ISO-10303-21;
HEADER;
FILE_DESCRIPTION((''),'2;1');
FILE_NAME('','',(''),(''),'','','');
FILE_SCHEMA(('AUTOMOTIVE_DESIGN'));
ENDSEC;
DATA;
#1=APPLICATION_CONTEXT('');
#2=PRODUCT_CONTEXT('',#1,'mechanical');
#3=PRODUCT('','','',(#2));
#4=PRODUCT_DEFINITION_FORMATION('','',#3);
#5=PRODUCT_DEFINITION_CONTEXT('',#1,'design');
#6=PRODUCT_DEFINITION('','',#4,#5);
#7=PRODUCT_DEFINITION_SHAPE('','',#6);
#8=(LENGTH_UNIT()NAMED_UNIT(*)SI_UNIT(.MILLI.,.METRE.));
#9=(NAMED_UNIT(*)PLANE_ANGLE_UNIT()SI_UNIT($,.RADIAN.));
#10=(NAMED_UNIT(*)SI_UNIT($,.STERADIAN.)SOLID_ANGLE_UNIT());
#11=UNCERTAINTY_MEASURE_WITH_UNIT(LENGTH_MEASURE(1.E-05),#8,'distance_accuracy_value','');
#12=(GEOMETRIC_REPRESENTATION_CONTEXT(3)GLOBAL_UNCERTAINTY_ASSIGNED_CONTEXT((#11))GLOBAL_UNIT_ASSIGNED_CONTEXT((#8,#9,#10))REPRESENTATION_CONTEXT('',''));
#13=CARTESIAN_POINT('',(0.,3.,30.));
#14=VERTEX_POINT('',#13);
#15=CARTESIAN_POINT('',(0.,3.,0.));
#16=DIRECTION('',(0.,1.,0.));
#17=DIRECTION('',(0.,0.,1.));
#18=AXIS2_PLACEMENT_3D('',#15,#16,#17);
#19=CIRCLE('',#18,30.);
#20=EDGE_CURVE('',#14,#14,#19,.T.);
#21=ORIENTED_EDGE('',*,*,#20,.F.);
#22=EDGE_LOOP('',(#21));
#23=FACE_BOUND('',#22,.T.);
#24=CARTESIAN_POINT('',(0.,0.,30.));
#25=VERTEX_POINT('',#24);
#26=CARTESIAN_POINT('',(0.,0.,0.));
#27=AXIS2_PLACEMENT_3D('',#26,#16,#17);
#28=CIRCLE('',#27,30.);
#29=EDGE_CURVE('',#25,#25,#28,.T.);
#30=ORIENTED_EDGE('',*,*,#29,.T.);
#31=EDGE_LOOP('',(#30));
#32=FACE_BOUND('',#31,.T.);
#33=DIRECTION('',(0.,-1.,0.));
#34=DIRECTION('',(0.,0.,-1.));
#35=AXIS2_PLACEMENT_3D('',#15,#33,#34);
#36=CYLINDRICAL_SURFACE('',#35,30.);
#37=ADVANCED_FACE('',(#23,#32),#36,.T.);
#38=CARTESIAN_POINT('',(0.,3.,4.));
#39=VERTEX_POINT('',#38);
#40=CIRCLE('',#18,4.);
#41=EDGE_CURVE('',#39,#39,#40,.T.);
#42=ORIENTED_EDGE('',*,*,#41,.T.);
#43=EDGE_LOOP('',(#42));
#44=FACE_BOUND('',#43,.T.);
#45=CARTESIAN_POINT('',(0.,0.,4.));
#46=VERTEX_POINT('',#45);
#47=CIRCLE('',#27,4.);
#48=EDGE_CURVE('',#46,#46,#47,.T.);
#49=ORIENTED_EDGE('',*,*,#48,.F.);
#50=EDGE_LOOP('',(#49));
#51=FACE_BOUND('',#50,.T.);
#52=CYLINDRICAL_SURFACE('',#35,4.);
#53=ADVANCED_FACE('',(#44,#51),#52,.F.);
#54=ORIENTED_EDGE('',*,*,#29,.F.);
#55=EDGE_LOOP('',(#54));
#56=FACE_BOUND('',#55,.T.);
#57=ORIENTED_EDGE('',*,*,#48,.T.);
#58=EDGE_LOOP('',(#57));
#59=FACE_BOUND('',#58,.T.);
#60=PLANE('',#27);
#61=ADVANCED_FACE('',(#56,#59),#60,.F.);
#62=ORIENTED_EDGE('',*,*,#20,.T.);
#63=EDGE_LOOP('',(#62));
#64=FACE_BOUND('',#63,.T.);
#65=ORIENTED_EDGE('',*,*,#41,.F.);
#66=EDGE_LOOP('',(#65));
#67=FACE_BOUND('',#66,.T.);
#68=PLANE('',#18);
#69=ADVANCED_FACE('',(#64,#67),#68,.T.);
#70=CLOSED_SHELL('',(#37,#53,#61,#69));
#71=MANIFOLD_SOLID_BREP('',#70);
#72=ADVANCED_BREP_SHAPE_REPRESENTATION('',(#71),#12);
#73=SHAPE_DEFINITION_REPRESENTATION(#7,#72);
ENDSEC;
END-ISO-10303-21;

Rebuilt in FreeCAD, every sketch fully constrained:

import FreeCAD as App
import Part
import Sketcher
from FreeCAD import Vector
Q = App.Units.Quantity

doc = App.newDocument("Part")
body = doc.addObject("PartDesign::Body", "Body")

sketch1 = body.newObject("Sketcher::SketchObject", "Sketch")
sketch1.AttachmentSupport = (doc.getObject("XZ_Plane"), [""])
sketch1.MapMode = "FlatFace"
sketch1.addGeometry(Part.Circle(Vector(0, 0, 0), Vector(0, 0, 1), 30), False)
sketch1.addGeometry(Part.Circle(Vector(0, 0, 0), Vector(0, 0, 1), 4), False)
sketch1.addConstraint(Sketcher.Constraint("Coincident", 0, 3, -1, 1))
sketch1.addConstraint(Sketcher.Constraint("Coincident", 1, 3, -1, 1))
sketch1.addConstraint(Sketcher.Constraint("Diameter", 0, Q("60 mm")))
sketch1.addConstraint(Sketcher.Constraint("Diameter", 1, Q("8 mm")))
pad1 = body.newObject("PartDesign::Pad", "Pad")
pad1.Profile = sketch1
pad1.Length = 3
pad1.Reversed = True

doc.recompute()
